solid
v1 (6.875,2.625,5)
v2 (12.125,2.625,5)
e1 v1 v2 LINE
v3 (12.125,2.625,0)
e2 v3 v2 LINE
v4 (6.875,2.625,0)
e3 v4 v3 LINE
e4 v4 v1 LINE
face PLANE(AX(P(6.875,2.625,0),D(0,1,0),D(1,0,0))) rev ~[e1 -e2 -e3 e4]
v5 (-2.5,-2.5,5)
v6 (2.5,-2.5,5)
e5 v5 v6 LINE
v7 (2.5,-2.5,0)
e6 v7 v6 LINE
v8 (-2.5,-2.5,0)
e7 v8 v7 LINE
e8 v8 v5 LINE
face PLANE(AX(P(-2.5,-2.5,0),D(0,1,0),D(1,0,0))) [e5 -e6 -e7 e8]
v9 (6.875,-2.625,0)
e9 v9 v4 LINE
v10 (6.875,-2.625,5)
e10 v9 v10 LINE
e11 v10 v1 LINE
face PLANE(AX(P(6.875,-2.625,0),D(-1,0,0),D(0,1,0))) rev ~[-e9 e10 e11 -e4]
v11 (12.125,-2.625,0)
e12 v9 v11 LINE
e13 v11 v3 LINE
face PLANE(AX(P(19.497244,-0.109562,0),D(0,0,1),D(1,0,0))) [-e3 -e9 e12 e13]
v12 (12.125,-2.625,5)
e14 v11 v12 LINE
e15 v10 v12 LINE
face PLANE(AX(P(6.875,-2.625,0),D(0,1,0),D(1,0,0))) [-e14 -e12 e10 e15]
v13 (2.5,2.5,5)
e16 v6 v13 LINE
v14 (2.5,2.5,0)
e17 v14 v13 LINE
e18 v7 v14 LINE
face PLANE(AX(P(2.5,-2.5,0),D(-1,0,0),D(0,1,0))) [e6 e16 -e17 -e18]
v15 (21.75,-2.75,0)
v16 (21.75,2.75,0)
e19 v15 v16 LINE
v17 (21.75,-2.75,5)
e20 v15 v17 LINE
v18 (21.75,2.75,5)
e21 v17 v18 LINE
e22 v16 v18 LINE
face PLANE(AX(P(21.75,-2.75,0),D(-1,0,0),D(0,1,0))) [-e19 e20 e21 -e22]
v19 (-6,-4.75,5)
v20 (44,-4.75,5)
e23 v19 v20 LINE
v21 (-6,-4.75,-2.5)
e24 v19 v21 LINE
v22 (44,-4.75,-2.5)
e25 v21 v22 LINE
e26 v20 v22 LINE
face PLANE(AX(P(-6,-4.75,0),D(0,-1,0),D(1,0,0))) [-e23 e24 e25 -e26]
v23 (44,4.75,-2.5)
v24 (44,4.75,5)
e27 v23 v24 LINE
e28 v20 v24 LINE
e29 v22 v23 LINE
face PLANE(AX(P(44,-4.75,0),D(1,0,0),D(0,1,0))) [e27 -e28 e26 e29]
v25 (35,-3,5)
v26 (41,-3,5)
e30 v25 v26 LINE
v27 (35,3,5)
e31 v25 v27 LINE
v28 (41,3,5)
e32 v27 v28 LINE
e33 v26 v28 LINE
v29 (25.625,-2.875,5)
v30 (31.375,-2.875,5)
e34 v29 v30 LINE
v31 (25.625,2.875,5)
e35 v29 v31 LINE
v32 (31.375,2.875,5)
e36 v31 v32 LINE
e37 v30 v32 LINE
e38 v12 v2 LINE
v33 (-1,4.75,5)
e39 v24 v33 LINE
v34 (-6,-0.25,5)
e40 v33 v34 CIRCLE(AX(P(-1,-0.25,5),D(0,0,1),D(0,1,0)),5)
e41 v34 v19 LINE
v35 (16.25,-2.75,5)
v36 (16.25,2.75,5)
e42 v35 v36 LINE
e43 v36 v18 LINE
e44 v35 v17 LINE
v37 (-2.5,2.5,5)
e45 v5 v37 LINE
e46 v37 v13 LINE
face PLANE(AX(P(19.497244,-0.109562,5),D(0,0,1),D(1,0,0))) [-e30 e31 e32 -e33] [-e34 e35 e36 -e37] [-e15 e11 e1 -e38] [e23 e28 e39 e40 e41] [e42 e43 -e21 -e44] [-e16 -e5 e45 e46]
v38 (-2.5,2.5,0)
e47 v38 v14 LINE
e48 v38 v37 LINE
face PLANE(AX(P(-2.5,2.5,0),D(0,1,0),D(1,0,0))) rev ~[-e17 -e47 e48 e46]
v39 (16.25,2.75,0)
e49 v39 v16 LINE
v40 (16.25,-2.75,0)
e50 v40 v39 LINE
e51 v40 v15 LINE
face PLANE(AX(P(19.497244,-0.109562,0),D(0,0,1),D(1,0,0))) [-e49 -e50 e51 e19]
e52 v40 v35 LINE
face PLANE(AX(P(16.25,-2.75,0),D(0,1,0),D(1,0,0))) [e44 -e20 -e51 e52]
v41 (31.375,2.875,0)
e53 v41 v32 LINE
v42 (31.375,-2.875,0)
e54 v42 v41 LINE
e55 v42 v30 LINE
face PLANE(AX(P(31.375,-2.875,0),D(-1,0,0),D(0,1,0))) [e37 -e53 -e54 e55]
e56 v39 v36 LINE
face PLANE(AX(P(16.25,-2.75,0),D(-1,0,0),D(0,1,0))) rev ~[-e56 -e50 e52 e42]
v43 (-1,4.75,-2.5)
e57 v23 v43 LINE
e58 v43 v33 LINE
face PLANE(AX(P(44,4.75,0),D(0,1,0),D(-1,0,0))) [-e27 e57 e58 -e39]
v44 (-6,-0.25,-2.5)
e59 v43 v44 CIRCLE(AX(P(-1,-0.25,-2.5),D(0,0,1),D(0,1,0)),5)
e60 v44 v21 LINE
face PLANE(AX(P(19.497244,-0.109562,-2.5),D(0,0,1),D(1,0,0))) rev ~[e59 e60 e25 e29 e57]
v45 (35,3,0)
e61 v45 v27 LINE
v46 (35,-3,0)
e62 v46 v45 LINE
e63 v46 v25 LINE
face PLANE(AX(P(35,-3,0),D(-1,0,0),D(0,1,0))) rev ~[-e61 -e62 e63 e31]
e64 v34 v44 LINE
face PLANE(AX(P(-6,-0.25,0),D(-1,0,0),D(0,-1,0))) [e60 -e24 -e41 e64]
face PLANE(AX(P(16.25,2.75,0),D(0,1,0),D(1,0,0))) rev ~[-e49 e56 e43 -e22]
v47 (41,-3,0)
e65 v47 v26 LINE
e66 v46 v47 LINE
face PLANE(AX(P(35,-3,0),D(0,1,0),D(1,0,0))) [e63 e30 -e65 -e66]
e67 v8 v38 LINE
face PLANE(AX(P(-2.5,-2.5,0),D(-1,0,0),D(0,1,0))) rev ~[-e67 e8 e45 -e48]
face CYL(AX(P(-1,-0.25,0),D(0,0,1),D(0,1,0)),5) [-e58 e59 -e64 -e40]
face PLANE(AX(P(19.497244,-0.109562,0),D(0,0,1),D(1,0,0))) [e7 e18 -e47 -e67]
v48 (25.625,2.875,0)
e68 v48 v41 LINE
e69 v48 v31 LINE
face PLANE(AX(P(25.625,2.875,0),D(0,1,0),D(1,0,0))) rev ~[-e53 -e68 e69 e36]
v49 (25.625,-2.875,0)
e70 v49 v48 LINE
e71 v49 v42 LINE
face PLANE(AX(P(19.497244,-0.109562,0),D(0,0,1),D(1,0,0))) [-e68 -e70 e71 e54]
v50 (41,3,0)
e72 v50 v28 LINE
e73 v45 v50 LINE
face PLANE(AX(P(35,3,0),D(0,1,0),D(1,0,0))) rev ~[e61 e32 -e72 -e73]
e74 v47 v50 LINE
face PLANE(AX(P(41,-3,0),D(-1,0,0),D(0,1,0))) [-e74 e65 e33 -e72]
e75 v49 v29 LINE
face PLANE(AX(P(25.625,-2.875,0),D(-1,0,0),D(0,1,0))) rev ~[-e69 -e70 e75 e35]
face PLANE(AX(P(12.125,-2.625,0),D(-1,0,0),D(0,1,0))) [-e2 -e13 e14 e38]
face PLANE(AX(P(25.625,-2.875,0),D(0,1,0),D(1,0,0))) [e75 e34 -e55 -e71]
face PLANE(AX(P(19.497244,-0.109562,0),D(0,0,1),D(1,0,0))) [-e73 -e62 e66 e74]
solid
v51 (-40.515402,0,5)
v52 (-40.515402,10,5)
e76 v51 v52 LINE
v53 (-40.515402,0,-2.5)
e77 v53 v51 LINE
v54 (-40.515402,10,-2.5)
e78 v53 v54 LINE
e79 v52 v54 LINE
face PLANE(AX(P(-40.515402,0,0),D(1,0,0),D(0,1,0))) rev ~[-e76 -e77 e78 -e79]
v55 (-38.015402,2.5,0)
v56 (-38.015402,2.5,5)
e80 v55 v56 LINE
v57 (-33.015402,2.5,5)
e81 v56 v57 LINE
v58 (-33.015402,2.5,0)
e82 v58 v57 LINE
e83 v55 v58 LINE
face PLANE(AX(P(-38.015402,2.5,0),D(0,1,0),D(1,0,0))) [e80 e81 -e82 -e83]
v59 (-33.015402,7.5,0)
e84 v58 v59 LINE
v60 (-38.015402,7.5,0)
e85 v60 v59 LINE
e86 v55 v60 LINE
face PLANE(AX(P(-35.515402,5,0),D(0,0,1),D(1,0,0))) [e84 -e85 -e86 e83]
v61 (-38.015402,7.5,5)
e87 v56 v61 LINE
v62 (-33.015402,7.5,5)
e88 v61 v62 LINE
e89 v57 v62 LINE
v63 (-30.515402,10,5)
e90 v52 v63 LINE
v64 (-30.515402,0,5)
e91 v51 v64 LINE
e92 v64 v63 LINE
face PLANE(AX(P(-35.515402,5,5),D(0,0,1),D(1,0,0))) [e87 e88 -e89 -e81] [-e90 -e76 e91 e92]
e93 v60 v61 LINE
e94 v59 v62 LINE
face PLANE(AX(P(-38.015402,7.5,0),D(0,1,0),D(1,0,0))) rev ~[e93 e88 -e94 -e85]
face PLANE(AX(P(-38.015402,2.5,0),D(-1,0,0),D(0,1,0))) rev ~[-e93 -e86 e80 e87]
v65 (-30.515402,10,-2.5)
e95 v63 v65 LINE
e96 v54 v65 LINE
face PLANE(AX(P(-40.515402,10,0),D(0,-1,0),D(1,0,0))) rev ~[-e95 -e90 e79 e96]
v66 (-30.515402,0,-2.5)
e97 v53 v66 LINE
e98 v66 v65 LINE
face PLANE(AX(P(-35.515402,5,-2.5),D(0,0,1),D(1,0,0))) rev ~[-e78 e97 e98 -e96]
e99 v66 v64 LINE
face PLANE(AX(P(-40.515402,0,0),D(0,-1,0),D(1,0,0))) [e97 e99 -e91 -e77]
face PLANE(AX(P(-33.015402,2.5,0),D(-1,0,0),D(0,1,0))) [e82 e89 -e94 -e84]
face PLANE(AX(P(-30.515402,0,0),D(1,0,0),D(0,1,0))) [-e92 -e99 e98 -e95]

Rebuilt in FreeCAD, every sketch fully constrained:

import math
import FreeCAD as App
import Part
import Sketcher
Q = App.Units.Quantity

doc = App.newDocument("Part")
params = doc.addObject("Spreadsheet::Sheet", "Params")
for row, (alias, value) in enumerate([
    ("sketch1_radius", "5 mm"),
    ("sketch1_width", "45 mm"),
    ("sketch1_width2", "5 mm"),
    ("sketch1_width3", "6 mm"),
    ("sketch1_width4", "5.5 mm"),
    ("pad1_length", "5 mm"),
    ("sketch2_radius", "5 mm"),
    ("sketch2_width", "45 mm"),
    ("sketch2_height", "9.5 mm"),
    ("pad2_length", "2.5 mm"),
    ("sketch3_width", "10 mm"),
    ("sketch3_width2", "5 mm"),
    ("pad3_length", "5 mm"),
    ("sketch4_width", "10 mm"),
    ("pad4_length", "2.5 mm"),
], start=1):
    params.set(f"A{row}", alias)
    params.set(f"B{row}", "=" + value)
    params.setAlias(f"B{row}", alias)

body = doc.addObject("PartDesign::Body", "Body")

sketch1 = doc.addObject("Sketcher::SketchObject", "Sketch")
body.addObject(sketch1)
sketch1.AttachmentSupport = (doc.XY_Plane, [""])
sketch1.MapMode = "FlatFace"
sketch1.addGeometry(Part.LineSegment(App.Vector(44, -4.8, 0), App.Vector(44, 4.8, 0)), False)
sketch1.addGeometry(Part.LineSegment(App.Vector(44, 4.8, 0), App.Vector(-1, 4.8, 0)), False)
sketch1.addGeometry(Part.ArcOfCircle(Part.Circle(App.Vector(-1, -0.2, 0), App.Vector(0, 0, 1), 5), math.radians(90), math.radians(180)), False)
sketch1.addGeometry(Part.LineSegment(App.Vector(-6, -0.2, 0), App.Vector(-6, -4.8, 0)), False)
sketch1.addGeometry(Part.LineSegment(App.Vector(-6, -4.8, 0), App.Vector(44, -4.8, 0)), False)
sketch1.addGeometry(Part.LineSegment(App.Vector(2.5, -2.5, 0), App.Vector(-2.5, -2.5, 0)), False)
sketch1.addGeometry(Part.LineSegment(App.Vector(-2.5, -2.5, 0), App.Vector(-2.5, 2.5, 0)), False)
sketch1.addGeometry(Part.LineSegment(App.Vector(-2.5, 2.5, 0), App.Vector(2.5, 2.5, 0)), False)
sketch1.addGeometry(Part.LineSegment(App.Vector(2.5, 2.5, 0), App.Vector(2.5, -2.5, 0)), False)
sketch1.addGeometry(Part.LineSegment(App.Vector(12.1, -2.6, 0), App.Vector(6.9, -2.6, 0)), False)
sketch1.addGeometry(Part.LineSegment(App.Vector(6.9, -2.6, 0), App.Vector(6.9, 2.6, 0)), False)
sketch1.addGeometry(Part.LineSegment(App.Vector(6.9, 2.6, 0), App.Vector(12.1, 2.6, 0)), False)
sketch1.addGeometry(Part.LineSegment(App.Vector(12.1, 2.6, 0), App.Vector(12.1, -2.6, 0)), False)
sketch1.addGeometry(Part.LineSegment(App.Vector(21.8, -2.8, 0), App.Vector(16.2, -2.8, 0)), False)
sketch1.addGeometry(Part.LineSegment(App.Vector(16.2, -2.8, 0), App.Vector(16.2, 2.8, 0)), False)
sketch1.addGeometry(Part.LineSegment(App.Vector(16.2, 2.8, 0), App.Vector(21.8, 2.8, 0)), False)
sketch1.addGeometry(Part.LineSegment(App.Vector(21.8, 2.8, 0), App.Vector(21.8, -2.8, 0)), False)
sketch1.addGeometry(Part.LineSegment(App.Vector(31.4, -2.9, 0), App.Vector(25.6, -2.9, 0)), False)
sketch1.addGeometry(Part.LineSegment(App.Vector(25.6, -2.9, 0), App.Vector(25.6, 2.9, 0)), False)
sketch1.addGeometry(Part.LineSegment(App.Vector(25.6, 2.9, 0), App.Vector(31.4, 2.9, 0)), False)
sketch1.addGeometry(Part.LineSegment(App.Vector(31.4, 2.9, 0), App.Vector(31.4, -2.9, 0)), False)
sketch1.addGeometry(Part.LineSegment(App.Vector(41, -3, 0), App.Vector(35, -3, 0)), False)
sketch1.addGeometry(Part.LineSegment(App.Vector(35, -3, 0), App.Vector(35, 3, 0)), False)
sketch1.addGeometry(Part.LineSegment(App.Vector(35, 3, 0), App.Vector(41, 3, 0)), False)
sketch1.addGeometry(Part.LineSegment(App.Vector(41, 3, 0), App.Vector(41, -3, 0)), False)
sketch1.addConstraint(Sketcher.Constraint("Coincident", 0, 2, 1, 1))
sketch1.addConstraint(Sketcher.Constraint("Tangent", 1, 2, 2, 1))
sketch1.addConstraint(Sketcher.Constraint("Tangent", 2, 2, 3, 1))
sketch1.addConstraint(Sketcher.Constraint("Coincident", 3, 2, 4, 1))
sketch1.addConstraint(Sketcher.Constraint("Coincident", 4, 2, 0, 1))
sketch1.addConstraint(Sketcher.Constraint("Coincident", 5, 2, 6, 1))
sketch1.addConstraint(Sketcher.Constraint("Coincident", 6, 2, 7, 1))
sketch1.addConstraint(Sketcher.Constraint("Coincident", 7, 2, 8, 1))
sketch1.addConstraint(Sketcher.Constraint("Coincident", 8, 2, 5, 1))
sketch1.addConstraint(Sketcher.Constraint("Coincident", 9, 2, 10, 1))
sketch1.addConstraint(Sketcher.Constraint("Coincident", 10, 2, 11, 1))
sketch1.addConstraint(Sketcher.Constraint("Coincident", 11, 2, 12, 1))
sketch1.addConstraint(Sketcher.Constraint("Coincident", 12, 2, 9, 1))
sketch1.addConstraint(Sketcher.Constraint("Coincident", 13, 2, 14, 1))
sketch1.addConstraint(Sketcher.Constraint("Coincident", 14, 2, 15, 1))
sketch1.addConstraint(Sketcher.Constraint("Coincident", 15, 2, 16, 1))
sketch1.addConstraint(Sketcher.Constraint("Coincident", 16, 2, 13, 1))
sketch1.addConstraint(Sketcher.Constraint("Coincident", 17, 2, 18, 1))
sketch1.addConstraint(Sketcher.Constraint("Coincident", 18, 2, 19, 1))
sketch1.addConstraint(Sketcher.Constraint("Coincident", 19, 2, 20, 1))
sketch1.addConstraint(Sketcher.Constraint("Coincident", 20, 2, 17, 1))
sketch1.addConstraint(Sketcher.Constraint("Coincident", 21, 2, 22, 1))
sketch1.addConstraint(Sketcher.Constraint("Coincident", 22, 2, 23, 1))
sketch1.addConstraint(Sketcher.Constraint("Coincident", 23, 2, 24, 1))
sketch1.addConstraint(Sketcher.Constraint("Coincident", 24, 2, 21, 1))
sketch1.addConstraint(Sketcher.Constraint("Vertical", 0))
sketch1.addConstraint(Sketcher.Constraint("Horizontal", 1))
sketch1.addConstraint(Sketcher.Constraint("Vertical", 3))
sketch1.addConstraint(Sketcher.Constraint("Horizontal", 4))
sketch1.addConstraint(Sketcher.Constraint("Horizontal", 5))
sketch1.addConstraint(Sketcher.Constraint("Vertical", 6))
sketch1.addConstraint(Sketcher.Constraint("Horizontal", 7))
sketch1.addConstraint(Sketcher.Constraint("Vertical", 8))
sketch1.addConstraint(Sketcher.Constraint("Horizontal", 9))
sketch1.addConstraint(Sketcher.Constraint("Vertical", 10))
sketch1.addConstraint(Sketcher.Constraint("Horizontal", 11))
sketch1.addConstraint(Sketcher.Constraint("Vertical", 12))
sketch1.addConstraint(Sketcher.Constraint("Horizontal", 13))
sketch1.addConstraint(Sketcher.Constraint("Vertical", 14))
sketch1.addConstraint(Sketcher.Constraint("Horizontal", 15))
sketch1.addConstraint(Sketcher.Constraint("Vertical", 16))
sketch1.addConstraint(Sketcher.Constraint("Horizontal", 17))
sketch1.addConstraint(Sketcher.Constraint("Vertical", 18))
sketch1.addConstraint(Sketcher.Constraint("Horizontal", 19))
sketch1.addConstraint(Sketcher.Constraint("Vertical", 20))
sketch1.addConstraint(Sketcher.Constraint("Horizontal", 21))
sketch1.addConstraint(Sketcher.Constraint("Vertical", 22))
sketch1.addConstraint(Sketcher.Constraint("Horizontal", 23))
sketch1.addConstraint(Sketcher.Constraint("Vertical", 24))
sketch1.addConstraint(Sketcher.Constraint("Symmetric", 5, 2, 7, 2, -1, 1))
sketch1.addConstraint(Sketcher.Constraint("Equal", 7, 6))
sketch1.addConstraint(Sketcher.Constraint("Equal", 11, 10))
sketch1.addConstraint(Sketcher.Constraint("Equal", 15, 14))
sketch1.addConstraint(Sketcher.Constraint("Equal", 19, 18))
sketch1.addConstraint(Sketcher.Constraint("Equal", 23, 22))
sketch1.addConstraint(Sketcher.Constraint("Radius", 2, Q("5 mm")))
sketch1.addConstraint(Sketcher.Constraint("DistanceX", 1, 2, 1, 1, Q("45 mm")))
sketch1.addConstraint(Sketcher.Constraint("DistanceX", 5, 2, 5, 1, Q("5 mm")))
sketch1.addConstraint(Sketcher.Constraint("DistanceX", 21, 2, 21, 1, Q("6 mm")))
sketch1.addConstraint(Sketcher.Constraint("DistanceX", 13, 2, 13, 1, Q("5.5 mm")))
sketch1.addConstraint(Sketcher.Constraint("DistanceY", 0, 1, 0, 2, Q("9.5 mm")))
sketch1.addConstraint(Sketcher.Constraint("DistanceX", 2, 3, -1, 1, Q("1 mm")))
sketch1.addConstraint(Sketcher.Constraint("DistanceX", -1, 1, 21, 2, Q("35 mm")))
sketch1.addConstraint(Sketcher.Constraint("DistanceY", 21, 2, -1, 1, Q("3 mm")))
sketch1.addConstraint(Sketcher.Constraint("DistanceX", 9, 2, 9, 1, Q("5.25 mm")))
sketch1.addConstraint(Sketcher.Constraint("DistanceX", 17, 2, 17, 1, Q("5.75 mm")))
sketch1.addConstraint(Sketcher.Constraint("DistanceX", 12, 2, 17, 2, Q("13.5 mm")))
sketch1.addConstraint(Sketcher.Constraint("DistanceY", 2, 3, -1, 1, Q("0.25 mm")))
sketch1.addConstraint(Sketcher.Constraint("DistanceX", -1, 1, 13, 2, Q("16.25 mm")))
sketch1.addConstraint(Sketcher.Constraint("DistanceY", 13, 2, -1, 1, Q("2.75 mm")))
sketch1.addConstraint(Sketcher.Constraint("DistanceY", 17, 2, 12, 2, Q("0.25 mm")))
sketch1.addConstraint(Sketcher.Constraint("DistanceX", -1, 1, 9, 2, Q("6.875 mm")))
sketch1.addConstraint(Sketcher.Constraint("DistanceY", 9, 2, -1, 1, Q("2.625 mm")))
sketch1.setExpression("Constraints[55]", "Params.sketch1_radius")
sketch1.setExpression("Constraints[56]", "Params.sketch1_width")
sketch1.setExpression("Constraints[57]", "Params.sketch1_width2")
sketch1.setExpression("Constraints[58]", "Params.sketch1_width3")
sketch1.setExpression("Constraints[59]", "Params.sketch1_width4")
pad1 = doc.addObject("PartDesign::Pad", "Pad")
body.addObject(pad1)
pad1.Profile = sketch1
pad1.setExpression("Length", "Params.pad1_length")

sketch2 = doc.addObject("Sketcher::SketchObject", "Sketch001")
body.addObject(sketch2)
sketch2.AttachmentSupport = (doc.XY_Plane, [""])
sketch2.MapMode = "FlatFace"
sketch2.addGeometry(Part.LineSegment(App.Vector(44, -4.8, 0), App.Vector(44, 4.8, 0)), False)
sketch2.addGeometry(Part.LineSegment(App.Vector(44, 4.8, 0), App.Vector(-1, 4.8, 0)), False)
sketch2.addGeometry(Part.ArcOfCircle(Part.Circle(App.Vector(-1, -0.2, 0), App.Vector(0, 0, 1), 5), math.radians(90), math.radians(180)), False)
sketch2.addGeometry(Part.LineSegment(App.Vector(-6, -0.2, 0), App.Vector(-6, -4.8, 0)), False)
sketch2.addGeometry(Part.LineSegment(App.Vector(-6, -4.8, 0), App.Vector(44, -4.8, 0)), False)
sketch2.addConstraint(Sketcher.Constraint("Coincident", 0, 2, 1, 1))
sketch2.addConstraint(Sketcher.Constraint("Tangent", 1, 2, 2, 1))
sketch2.addConstraint(Sketcher.Constraint("Tangent", 2, 2, 3, 1))
sketch2.addConstraint(Sketcher.Constraint("Coincident", 3, 2, 4, 1))
sketch2.addConstraint(Sketcher.Constraint("Coincident", 4, 2, 0, 1))
sketch2.addConstraint(Sketcher.Constraint("Vertical", 0))
sketch2.addConstraint(Sketcher.Constraint("Horizontal", 1))
sketch2.addConstraint(Sketcher.Constraint("Vertical", 3))
sketch2.addConstraint(Sketcher.Constraint("Horizontal", 4))
sketch2.addConstraint(Sketcher.Constraint("Radius", 2, Q("5 mm")))
sketch2.addConstraint(Sketcher.Constraint("DistanceX", 1, 2, 1, 1, Q("45 mm")))
sketch2.addConstraint(Sketcher.Constraint("DistanceY", 0, 1, 0, 2, Q("9.5 mm")))
sketch2.addConstraint(Sketcher.Constraint("DistanceX", 2, 3, -1, 1, Q("1 mm")))
sketch2.addConstraint(Sketcher.Constraint("DistanceY", 2, 3, -1, 1, Q("0.25 mm")))
sketch2.setExpression("Constraints[9]", "Params.sketch2_radius")
sketch2.setExpression("Constraints[10]", "Params.sketch2_width")
sketch2.setExpression("Constraints[11]", "Params.sketch2_height")
pad2 = doc.addObject("PartDesign::Pad", "Pad001")
body.addObject(pad2)
pad2.Profile = sketch2
pad2.setExpression("Length", "Params.pad2_length")
pad2.Reversed = True
body2 = doc.addObject("PartDesign::Body", "Body001")

sketch3 = doc.addObject("Sketcher::SketchObject", "Sketch002")
body2.addObject(sketch3)
sketch3.AttachmentSupport = (doc.getObject("XY_Plane001"), [""])
sketch3.MapMode = "FlatFace"
sketch3.addGeometry(Part.LineSegment(App.Vector(-41, 10, 0), App.Vector(-41, 0, 0)), False)
sketch3.addGeometry(Part.LineSegment(App.Vector(-41, 0, 0), App.Vector(-31, 0, 0)), False)
sketch3.addGeometry(Part.LineSegment(App.Vector(-31, 0, 0), App.Vector(-31, 10, 0)), False)
sketch3.addGeometry(Part.LineSegment(App.Vector(-31, 10, 0), App.Vector(-41, 10, 0)), False)
sketch3.addGeometry(Part.LineSegment(App.Vector(-33, 2, 0), App.Vector(-38, 2, 0)), False)
sketch3.addGeometry(Part.LineSegment(App.Vector(-38, 2, 0), App.Vector(-38, 8, 0)), False)
sketch3.addGeometry(Part.LineSegment(App.Vector(-38, 8, 0), App.Vector(-33, 8, 0)), False)
sketch3.addGeometry(Part.LineSegment(App.Vector(-33, 8, 0), App.Vector(-33, 2, 0)), False)
sketch3.addConstraint(Sketcher.Constraint("Coincident", 0, 2, 1, 1))
sketch3.addConstraint(Sketcher.Constraint("Coincident", 1, 2, 2, 1))
sketch3.addConstraint(Sketcher.Constraint("Coincident", 2, 2, 3, 1))
sketch3.addConstraint(Sketcher.Constraint("Coincident", 3, 2, 0, 1))
sketch3.addConstraint(Sketcher.Constraint("Coincident", 4, 2, 5, 1))
sketch3.addConstraint(Sketcher.Constraint("Coincident", 5, 2, 6, 1))
sketch3.addConstraint(Sketcher.Constraint("Coincident", 6, 2, 7, 1))
sketch3.addConstraint(Sketcher.Constraint("Coincident", 7, 2, 4, 1))
sketch3.addConstraint(Sketcher.Constraint("Vertical", 0))
sketch3.addConstraint(Sketcher.Constraint("Horizontal", 1))
sketch3.addConstraint(Sketcher.Constraint("Vertical", 2))
sketch3.addConstraint(Sketcher.Constraint("Horizontal", 3))
sketch3.addConstraint(Sketcher.Constraint("Horizontal", 4))
sketch3.addConstraint(Sketcher.Constraint("Vertical", 5))
sketch3.addConstraint(Sketcher.Constraint("Horizontal", 6))
sketch3.addConstraint(Sketcher.Constraint("Vertical", 7))
sketch3.addConstraint(Sketcher.Constraint("PointOnObject", 0, 2, -1))
sketch3.addConstraint(Sketcher.Constraint("Equal", 3, 0))
sketch3.addConstraint(Sketcher.Constraint("Equal", 6, 5))
sketch3.addConstraint(Sketcher.Constraint("DistanceX", 1, 1, 1, 2, Q("10 mm")))
sketch3.addConstraint(Sketcher.Constraint("DistanceX", 4, 2, 4, 1, Q("5 mm")))
sketch3.addConstraint(Sketcher.Constraint("DistanceY", -1, 1, 4, 2, Q("2.5 mm")))
sketch3.addConstraint(Sketcher.Constraint("DistanceX", 0, 2, 4, 2, Q("2.5 mm")))
sketch3.addConstraint(Sketcher.Constraint("DistanceX", 0, 2, -1, 1, Q("40.515402 mm")))
sketch3.setExpression("Constraints[19]", "Params.sketch3_width")
sketch3.setExpression("Constraints[20]", "Params.sketch3_width2")
pad3 = doc.addObject("PartDesign::Pad", "Pad002")
body2.addObject(pad3)
pad3.Profile = sketch3
pad3.setExpression("Length", "Params.pad3_length")

sketch4 = doc.addObject("Sketcher::SketchObject", "Sketch003")
body2.addObject(sketch4)
sketch4.AttachmentSupport = (doc.getObject("XY_Plane001"), [""])
sketch4.MapMode = "FlatFace"
sketch4.addGeometry(Part.LineSegment(App.Vector(-41, 10, 0), App.Vector(-41, 0, 0)), False)
sketch4.addGeometry(Part.LineSegment(App.Vector(-41, 0, 0), App.Vector(-31, 0, 0)), False)
sketch4.addGeometry(Part.LineSegment(App.Vector(-31, 0, 0), App.Vector(-31, 10, 0)), False)
sketch4.addGeometry(Part.LineSegment(App.Vector(-31, 10, 0), App.Vector(-41, 10, 0)), False)
sketch4.addConstraint(Sketcher.Constraint("Coincident", 0, 2, 1, 1))
sketch4.addConstraint(Sketcher.Constraint("Coincident", 1, 2, 2, 1))
sketch4.addConstraint(Sketcher.Constraint("Coincident", 2, 2, 3, 1))
sketch4.addConstraint(Sketcher.Constraint("Coincident", 3, 2, 0, 1))
sketch4.addConstraint(Sketcher.Constraint("Vertical", 0))
sketch4.addConstraint(Sketcher.Constraint("Horizontal", 1))
sketch4.addConstraint(Sketcher.Constraint("Vertical", 2))
sketch4.addConstraint(Sketcher.Constraint("Horizontal", 3))
sketch4.addConstraint(Sketcher.Constraint("PointOnObject", 0, 2, -1))
sketch4.addConstraint(Sketcher.Constraint("Equal", 3, 0))
sketch4.addConstraint(Sketcher.Constraint("DistanceX", 1, 1, 1, 2, Q("10 mm")))
sketch4.addConstraint(Sketcher.Constraint("DistanceX", 0, 2, -1, 1, Q("40.515402 mm")))
sketch4.setExpression("Constraints[10]", "Params.sketch4_width")
pad4 = doc.addObject("PartDesign::Pad", "Pad003")
body2.addObject(pad4)
pad4.Profile = sketch4
pad4.setExpression("Length", "Params.pad4_length")
pad4.Reversed = True

doc.recompute()
